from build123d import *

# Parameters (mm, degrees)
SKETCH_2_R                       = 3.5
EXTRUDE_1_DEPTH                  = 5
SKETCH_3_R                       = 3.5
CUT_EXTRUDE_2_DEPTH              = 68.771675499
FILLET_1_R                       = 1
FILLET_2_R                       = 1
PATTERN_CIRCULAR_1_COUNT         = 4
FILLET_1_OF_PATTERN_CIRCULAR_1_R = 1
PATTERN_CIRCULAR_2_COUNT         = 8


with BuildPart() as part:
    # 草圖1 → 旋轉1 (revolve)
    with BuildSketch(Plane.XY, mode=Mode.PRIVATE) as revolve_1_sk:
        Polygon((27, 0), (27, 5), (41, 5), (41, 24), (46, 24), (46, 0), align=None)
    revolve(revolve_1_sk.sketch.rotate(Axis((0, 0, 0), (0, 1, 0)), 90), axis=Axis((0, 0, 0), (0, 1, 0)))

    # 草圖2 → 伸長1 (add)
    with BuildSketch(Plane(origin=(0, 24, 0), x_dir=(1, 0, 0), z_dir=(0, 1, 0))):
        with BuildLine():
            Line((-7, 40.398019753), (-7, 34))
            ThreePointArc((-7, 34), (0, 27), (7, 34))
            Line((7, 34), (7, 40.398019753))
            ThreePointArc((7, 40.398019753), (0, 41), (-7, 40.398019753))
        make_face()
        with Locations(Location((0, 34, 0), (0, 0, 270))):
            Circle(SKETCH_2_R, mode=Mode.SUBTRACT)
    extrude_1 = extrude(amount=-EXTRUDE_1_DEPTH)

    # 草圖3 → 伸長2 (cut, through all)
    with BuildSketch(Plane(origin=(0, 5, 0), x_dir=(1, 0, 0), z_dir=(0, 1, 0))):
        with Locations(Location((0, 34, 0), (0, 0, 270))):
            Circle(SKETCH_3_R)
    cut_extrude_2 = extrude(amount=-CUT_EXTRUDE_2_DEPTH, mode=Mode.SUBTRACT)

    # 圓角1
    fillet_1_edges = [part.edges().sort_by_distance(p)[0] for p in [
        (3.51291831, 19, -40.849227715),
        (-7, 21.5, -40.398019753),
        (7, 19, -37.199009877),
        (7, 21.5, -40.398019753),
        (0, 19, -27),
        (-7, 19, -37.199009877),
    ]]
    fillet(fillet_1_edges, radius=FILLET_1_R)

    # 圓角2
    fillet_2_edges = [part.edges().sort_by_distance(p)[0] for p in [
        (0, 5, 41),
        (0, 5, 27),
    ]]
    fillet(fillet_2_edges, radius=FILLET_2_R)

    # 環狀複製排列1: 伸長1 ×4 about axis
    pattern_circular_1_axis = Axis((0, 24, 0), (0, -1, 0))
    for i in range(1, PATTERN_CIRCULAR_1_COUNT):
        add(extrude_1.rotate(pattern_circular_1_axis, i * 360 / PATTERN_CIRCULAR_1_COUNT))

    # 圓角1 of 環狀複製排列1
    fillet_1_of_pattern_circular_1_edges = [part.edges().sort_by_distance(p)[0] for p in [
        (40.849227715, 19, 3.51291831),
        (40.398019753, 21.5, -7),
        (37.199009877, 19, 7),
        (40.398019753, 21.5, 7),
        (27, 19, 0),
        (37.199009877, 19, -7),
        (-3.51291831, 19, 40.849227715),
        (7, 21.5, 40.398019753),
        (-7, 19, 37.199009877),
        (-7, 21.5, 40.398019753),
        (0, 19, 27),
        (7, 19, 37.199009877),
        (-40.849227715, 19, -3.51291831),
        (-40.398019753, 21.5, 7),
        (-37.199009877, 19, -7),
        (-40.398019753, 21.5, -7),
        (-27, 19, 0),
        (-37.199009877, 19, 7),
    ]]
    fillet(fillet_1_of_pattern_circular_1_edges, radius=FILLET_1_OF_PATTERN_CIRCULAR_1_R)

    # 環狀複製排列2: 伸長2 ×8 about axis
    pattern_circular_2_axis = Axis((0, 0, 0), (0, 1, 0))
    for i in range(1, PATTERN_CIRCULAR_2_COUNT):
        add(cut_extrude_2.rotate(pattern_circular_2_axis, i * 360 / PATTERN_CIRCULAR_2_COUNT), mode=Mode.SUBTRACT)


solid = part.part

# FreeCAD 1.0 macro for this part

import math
import FreeCAD as App
import Part
import Sketcher
Q = App.Units.Quantity


def edges_at(feature, points):
    """Names of the edges that pass closest to the given points."""
    edges = feature.Shape.Edges
    near = lambda p: min(range(len(edges)), key=lambda i: edges[i].distToShape(Part.Vertex(*p))[0])
    return sorted({f"Edge{near(p) + 1}" for p in points})

doc = App.newDocument("Part")
params = doc.addObject("Spreadsheet::Sheet", "Params")
for row, (alias, value) in enumerate([
    ("sketch1_width", "19 mm"),
    ("sketch1_width2", "5 mm"),
    ("revolution_angle", "360 deg"),
    ("sketch2_diameter", "7 mm"),
    ("sketch2_radius", "7 mm"),
    ("sketch2_radius2", "41 mm"),
    ("pad1_length", "5 mm"),
    ("sketch3_diameter", "7 mm"),
    ("fillet_radius", "1 mm"),
    ("fillet2_radius", "1 mm"),
    ("fillet3_radius", "1 mm"),
], start=1):
    params.set(f"A{row}", alias)
    params.set(f"B{row}", "=" + value)
    params.setAlias(f"B{row}", alias)

body = doc.addObject("PartDesign::Body", "Body")

sketch1 = doc.addObject("Sketcher::SketchObject", "Sketch")
body.addObject(sketch1)
sketch1.AttachmentSupport = (doc.XY_Plane, [""])
sketch1.MapMode = "FlatFace"
sketch1.addGeometry(Part.LineSegment(App.Vector(27, 5, 0), App.Vector(27, 0, 0)), False)
sketch1.addGeometry(Part.LineSegment(App.Vector(27, 0, 0), App.Vector(46, 0, 0)), False)
sketch1.addGeometry(Part.LineSegment(App.Vector(46, 0, 0), App.Vector(46, 24, 0)), False)
sketch1.addGeometry(Part.LineSegment(App.Vector(46, 24, 0), App.Vector(41, 24, 0)), False)
sketch1.addGeometry(Part.LineSegment(App.Vector(41, 24, 0), App.Vector(41, 5, 0)), False)
sketch1.addGeometry(Part.LineSegment(App.Vector(41, 5, 0), App.Vector(27, 5, 0)), False)
sketch1.addConstraint(Sketcher.Constraint("Coincident", 0, 2, 1, 1))
sketch1.addConstraint(Sketcher.Constraint("Coincident", 1, 2, 2, 1))
sketch1.addConstraint(Sketcher.Constraint("Coincident", 2, 2, 3, 1))
sketch1.addConstraint(Sketcher.Constraint("Coincident", 3, 2, 4, 1))
sketch1.addConstraint(Sketcher.Constraint("Coincident", 4, 2, 5, 1))
sketch1.addConstraint(Sketcher.Constraint("Coincident", 5, 2, 0, 1))
sketch1.addConstraint(Sketcher.Constraint("Vertical", 0))
sketch1.addConstraint(Sketcher.Constraint("Horizontal", 1))
sketch1.addConstraint(Sketcher.Constraint("Vertical", 2))
sketch1.addConstraint(Sketcher.Constraint("Horizontal", 3))
sketch1.addConstraint(Sketcher.Constraint("Vertical", 4))
sketch1.addConstraint(Sketcher.Constraint("Horizontal", 5))
sketch1.addConstraint(Sketcher.Constraint("PointOnObject", 0, 2, -1))
sketch1.addConstraint(Sketcher.Constraint("Equal", 3, 0))
sketch1.addConstraint(Sketcher.Constraint("Equal", 1, 4))
sketch1.addConstraint(Sketcher.Constraint("DistanceX", 1, 1, 1, 2, Q("19 mm")))
sketch1.addConstraint(Sketcher.Constraint("DistanceX", 3, 2, 3, 1, Q("5 mm")))
sketch1.addConstraint(Sketcher.Constraint("DistanceX", -1, 1, 0, 2, Q("27 mm")))
sketch1.setExpression("Constraints[15]", "Params.sketch1_width")
sketch1.setExpression("Constraints[16]", "Params.sketch1_width2")
revolution = doc.addObject("PartDesign::Revolution", "Revolution")
body.addObject(revolution)
revolution.Profile = sketch1
revolution.ReferenceAxis = (sketch1, ["V_Axis"])
revolution.setExpression("Angle", "Params.revolution_angle")

sketch2 = doc.addObject("Sketcher::SketchObject", "Sketch001")
body.addObject(sketch2)
sketch2.AttachmentSupport = (doc.XZ_Plane, [""])
sketch2.MapMode = "FlatFace"
sketch2.AttachmentOffset = App.Placement(App.Vector(0, 0, -24), App.Rotation())
sketch2.addGeometry(Part.LineSegment(App.Vector(-7, -40.4, 0), App.Vector(-7, -34, 0)), False)
sketch2.addGeometry(Part.ArcOfCircle(Part.Circle(App.Vector(0, -34, 0), App.Vector(0, 0, 1), 7), math.radians(0), math.radians(180)), False)
sketch2.addGeometry(Part.LineSegment(App.Vector(7, -34, 0), App.Vector(7, -40.4, 0)), False)
sketch2.addGeometry(Part.ArcOfCircle(Part.Circle(App.Vector(0, 0, 0), App.Vector(0, 0, 1), 41), math.radians(-99.83), math.radians(-80.17)), False)
sketch2.addGeometry(Part.Circle(App.Vector(0, -34, 0), App.Vector(0, 0, 1), 3.5), False)
sketch2.addConstraint(Sketcher.Constraint("Tangent", 0, 2, 1, 2))
sketch2.addConstraint(Sketcher.Constraint("Tangent", 1, 1, 2, 1))
sketch2.addConstraint(Sketcher.Constraint("Coincident", 2, 2, 3, 2))
sketch2.addConstraint(Sketcher.Constraint("Coincident", 3, 1, 0, 1))
sketch2.addConstraint(Sketcher.Constraint("Vertical", 0))
sketch2.addConstraint(Sketcher.Constraint("Vertical", 2))
sketch2.addConstraint(Sketcher.Constraint("Coincident", 3, 3, -1, 1))
sketch2.addConstraint(Sketcher.Constraint("Coincident", 4, 3, 1, 3))
sketch2.addConstraint(Sketcher.Constraint("PointOnObject", 1, 3, -2))
sketch2.addConstraint(Sketcher.Constraint("Diameter", 4, Q("7 mm")))
sketch2.addConstraint(Sketcher.Constraint("Radius", 1, Q("7 mm")))
sketch2.addConstraint(Sketcher.Constraint("Radius", 3, Q("41 mm")))
sketch2.addConstraint(Sketcher.Constraint("DistanceY", 1, 3, -1, 1, Q("34 mm")))
sketch2.setExpression("Constraints[9]", "Params.sketch2_diameter")
sketch2.setExpression("Constraints[10]", "Params.sketch2_radius")
sketch2.setExpression("Constraints[11]", "Params.sketch2_radius2")
pad1 = doc.addObject("PartDesign::Pad", "Pad")
body.addObject(pad1)
pad1.Profile = sketch2
pad1.setExpression("Length", "Params.pad1_length")

sketch3 = doc.addObject("Sketcher::SketchObject", "Sketch002")
body.addObject(sketch3)
sketch3.AttachmentSupport = (doc.XZ_Plane, [""])
sketch3.MapMode = "FlatFace"
sketch3.AttachmentOffset = App.Placement(App.Vector(0, 0, -5), App.Rotation())
sketch3.addGeometry(Part.Circle(App.Vector(0, -34, 0), App.Vector(0, 0, 1), 3.5), False)
sketch3.addConstraint(Sketcher.Constraint("PointOnObject", 0, 3, -2))
sketch3.addConstraint(Sketcher.Constraint("Diameter", 0, Q("7 mm")))
sketch3.addConstraint(Sketcher.Constraint("DistanceY", 0, 3, -1, 1, Q("34 mm")))
sketch3.setExpression("Constraints[1]", "Params.sketch3_diameter")
pocket1 = doc.addObject("PartDesign::Pocket", "Pocket")
body.addObject(pocket1)
pocket1.Profile = sketch3
pocket1.Type = "ThroughAll"
pocket1.Reversed = True
doc.recompute()

fillet = doc.addObject("PartDesign::Fillet", "Fillet")
body.addObject(fillet)
fillet.Base = (pocket1, edges_at(pocket1, [
    (3.513, 19, -40.849),
    (-7, 21.5, -40.398),
    (7, 19, -37.199),
    (7, 21.5, -40.398),
    (0, 19, -27),
    (-7, 19, -37.199),
]))
fillet.setExpression("Radius", "Params.fillet_radius")
doc.recompute()

fillet2 = doc.addObject("PartDesign::Fillet", "Fillet001")
body.addObject(fillet2)
fillet2.Base = (fillet, edges_at(fillet, [(0, 5, 41), (0, 5, 27)]))
fillet2.setExpression("Radius", "Params.fillet2_radius")
doc.recompute()

polarpattern = doc.addObject("PartDesign::PolarPattern", "PolarPattern")
body.addObject(polarpattern)
polarpattern.Originals = [pad1]
polarpattern.Axis = (doc.Y_Axis, [""])
polarpattern.Angle = 360
polarpattern.Occurrences = 4
body.Tip = polarpattern
doc.recompute()

fillet3 = doc.addObject("PartDesign::Fillet", "Fillet002")
body.addObject(fillet3)
fillet3.Base = (polarpattern, edges_at(polarpattern, [
    (41, 19, 0),
    (40.398, 21.5, -7),
    (37.199, 19, 7),
    (40.398, 21.5, 7),
    (27, 19, 0),
    (37.199, 19, -7),
    (0, 19, 41),
    (7, 21.5, 40.398),
    (-7, 19, 37.199),
    (-7, 21.5, 40.398),
    (0, 19, 27),
    (7, 19, 37.199),
    (-41, 19, 0),
    (-40.398, 21.5, 7),
    (-37.199, 19, -7),
    (-40.398, 21.5, -7),
    (-27, 19, 0),
    (-37.199, 19, 7),
]))
fillet3.setExpression("Radius", "Params.fillet3_radius")
doc.recompute()

polarpattern2 = doc.addObject("PartDesign::PolarPattern", "PolarPattern001")
body.addObject(polarpattern2)
polarpattern2.Originals = [pocket1]
polarpattern2.Axis = (doc.Y_Axis, [""])
polarpattern2.Angle = 360
polarpattern2.Occurrences = 8
body.Tip = polarpattern2

doc.recompute()
